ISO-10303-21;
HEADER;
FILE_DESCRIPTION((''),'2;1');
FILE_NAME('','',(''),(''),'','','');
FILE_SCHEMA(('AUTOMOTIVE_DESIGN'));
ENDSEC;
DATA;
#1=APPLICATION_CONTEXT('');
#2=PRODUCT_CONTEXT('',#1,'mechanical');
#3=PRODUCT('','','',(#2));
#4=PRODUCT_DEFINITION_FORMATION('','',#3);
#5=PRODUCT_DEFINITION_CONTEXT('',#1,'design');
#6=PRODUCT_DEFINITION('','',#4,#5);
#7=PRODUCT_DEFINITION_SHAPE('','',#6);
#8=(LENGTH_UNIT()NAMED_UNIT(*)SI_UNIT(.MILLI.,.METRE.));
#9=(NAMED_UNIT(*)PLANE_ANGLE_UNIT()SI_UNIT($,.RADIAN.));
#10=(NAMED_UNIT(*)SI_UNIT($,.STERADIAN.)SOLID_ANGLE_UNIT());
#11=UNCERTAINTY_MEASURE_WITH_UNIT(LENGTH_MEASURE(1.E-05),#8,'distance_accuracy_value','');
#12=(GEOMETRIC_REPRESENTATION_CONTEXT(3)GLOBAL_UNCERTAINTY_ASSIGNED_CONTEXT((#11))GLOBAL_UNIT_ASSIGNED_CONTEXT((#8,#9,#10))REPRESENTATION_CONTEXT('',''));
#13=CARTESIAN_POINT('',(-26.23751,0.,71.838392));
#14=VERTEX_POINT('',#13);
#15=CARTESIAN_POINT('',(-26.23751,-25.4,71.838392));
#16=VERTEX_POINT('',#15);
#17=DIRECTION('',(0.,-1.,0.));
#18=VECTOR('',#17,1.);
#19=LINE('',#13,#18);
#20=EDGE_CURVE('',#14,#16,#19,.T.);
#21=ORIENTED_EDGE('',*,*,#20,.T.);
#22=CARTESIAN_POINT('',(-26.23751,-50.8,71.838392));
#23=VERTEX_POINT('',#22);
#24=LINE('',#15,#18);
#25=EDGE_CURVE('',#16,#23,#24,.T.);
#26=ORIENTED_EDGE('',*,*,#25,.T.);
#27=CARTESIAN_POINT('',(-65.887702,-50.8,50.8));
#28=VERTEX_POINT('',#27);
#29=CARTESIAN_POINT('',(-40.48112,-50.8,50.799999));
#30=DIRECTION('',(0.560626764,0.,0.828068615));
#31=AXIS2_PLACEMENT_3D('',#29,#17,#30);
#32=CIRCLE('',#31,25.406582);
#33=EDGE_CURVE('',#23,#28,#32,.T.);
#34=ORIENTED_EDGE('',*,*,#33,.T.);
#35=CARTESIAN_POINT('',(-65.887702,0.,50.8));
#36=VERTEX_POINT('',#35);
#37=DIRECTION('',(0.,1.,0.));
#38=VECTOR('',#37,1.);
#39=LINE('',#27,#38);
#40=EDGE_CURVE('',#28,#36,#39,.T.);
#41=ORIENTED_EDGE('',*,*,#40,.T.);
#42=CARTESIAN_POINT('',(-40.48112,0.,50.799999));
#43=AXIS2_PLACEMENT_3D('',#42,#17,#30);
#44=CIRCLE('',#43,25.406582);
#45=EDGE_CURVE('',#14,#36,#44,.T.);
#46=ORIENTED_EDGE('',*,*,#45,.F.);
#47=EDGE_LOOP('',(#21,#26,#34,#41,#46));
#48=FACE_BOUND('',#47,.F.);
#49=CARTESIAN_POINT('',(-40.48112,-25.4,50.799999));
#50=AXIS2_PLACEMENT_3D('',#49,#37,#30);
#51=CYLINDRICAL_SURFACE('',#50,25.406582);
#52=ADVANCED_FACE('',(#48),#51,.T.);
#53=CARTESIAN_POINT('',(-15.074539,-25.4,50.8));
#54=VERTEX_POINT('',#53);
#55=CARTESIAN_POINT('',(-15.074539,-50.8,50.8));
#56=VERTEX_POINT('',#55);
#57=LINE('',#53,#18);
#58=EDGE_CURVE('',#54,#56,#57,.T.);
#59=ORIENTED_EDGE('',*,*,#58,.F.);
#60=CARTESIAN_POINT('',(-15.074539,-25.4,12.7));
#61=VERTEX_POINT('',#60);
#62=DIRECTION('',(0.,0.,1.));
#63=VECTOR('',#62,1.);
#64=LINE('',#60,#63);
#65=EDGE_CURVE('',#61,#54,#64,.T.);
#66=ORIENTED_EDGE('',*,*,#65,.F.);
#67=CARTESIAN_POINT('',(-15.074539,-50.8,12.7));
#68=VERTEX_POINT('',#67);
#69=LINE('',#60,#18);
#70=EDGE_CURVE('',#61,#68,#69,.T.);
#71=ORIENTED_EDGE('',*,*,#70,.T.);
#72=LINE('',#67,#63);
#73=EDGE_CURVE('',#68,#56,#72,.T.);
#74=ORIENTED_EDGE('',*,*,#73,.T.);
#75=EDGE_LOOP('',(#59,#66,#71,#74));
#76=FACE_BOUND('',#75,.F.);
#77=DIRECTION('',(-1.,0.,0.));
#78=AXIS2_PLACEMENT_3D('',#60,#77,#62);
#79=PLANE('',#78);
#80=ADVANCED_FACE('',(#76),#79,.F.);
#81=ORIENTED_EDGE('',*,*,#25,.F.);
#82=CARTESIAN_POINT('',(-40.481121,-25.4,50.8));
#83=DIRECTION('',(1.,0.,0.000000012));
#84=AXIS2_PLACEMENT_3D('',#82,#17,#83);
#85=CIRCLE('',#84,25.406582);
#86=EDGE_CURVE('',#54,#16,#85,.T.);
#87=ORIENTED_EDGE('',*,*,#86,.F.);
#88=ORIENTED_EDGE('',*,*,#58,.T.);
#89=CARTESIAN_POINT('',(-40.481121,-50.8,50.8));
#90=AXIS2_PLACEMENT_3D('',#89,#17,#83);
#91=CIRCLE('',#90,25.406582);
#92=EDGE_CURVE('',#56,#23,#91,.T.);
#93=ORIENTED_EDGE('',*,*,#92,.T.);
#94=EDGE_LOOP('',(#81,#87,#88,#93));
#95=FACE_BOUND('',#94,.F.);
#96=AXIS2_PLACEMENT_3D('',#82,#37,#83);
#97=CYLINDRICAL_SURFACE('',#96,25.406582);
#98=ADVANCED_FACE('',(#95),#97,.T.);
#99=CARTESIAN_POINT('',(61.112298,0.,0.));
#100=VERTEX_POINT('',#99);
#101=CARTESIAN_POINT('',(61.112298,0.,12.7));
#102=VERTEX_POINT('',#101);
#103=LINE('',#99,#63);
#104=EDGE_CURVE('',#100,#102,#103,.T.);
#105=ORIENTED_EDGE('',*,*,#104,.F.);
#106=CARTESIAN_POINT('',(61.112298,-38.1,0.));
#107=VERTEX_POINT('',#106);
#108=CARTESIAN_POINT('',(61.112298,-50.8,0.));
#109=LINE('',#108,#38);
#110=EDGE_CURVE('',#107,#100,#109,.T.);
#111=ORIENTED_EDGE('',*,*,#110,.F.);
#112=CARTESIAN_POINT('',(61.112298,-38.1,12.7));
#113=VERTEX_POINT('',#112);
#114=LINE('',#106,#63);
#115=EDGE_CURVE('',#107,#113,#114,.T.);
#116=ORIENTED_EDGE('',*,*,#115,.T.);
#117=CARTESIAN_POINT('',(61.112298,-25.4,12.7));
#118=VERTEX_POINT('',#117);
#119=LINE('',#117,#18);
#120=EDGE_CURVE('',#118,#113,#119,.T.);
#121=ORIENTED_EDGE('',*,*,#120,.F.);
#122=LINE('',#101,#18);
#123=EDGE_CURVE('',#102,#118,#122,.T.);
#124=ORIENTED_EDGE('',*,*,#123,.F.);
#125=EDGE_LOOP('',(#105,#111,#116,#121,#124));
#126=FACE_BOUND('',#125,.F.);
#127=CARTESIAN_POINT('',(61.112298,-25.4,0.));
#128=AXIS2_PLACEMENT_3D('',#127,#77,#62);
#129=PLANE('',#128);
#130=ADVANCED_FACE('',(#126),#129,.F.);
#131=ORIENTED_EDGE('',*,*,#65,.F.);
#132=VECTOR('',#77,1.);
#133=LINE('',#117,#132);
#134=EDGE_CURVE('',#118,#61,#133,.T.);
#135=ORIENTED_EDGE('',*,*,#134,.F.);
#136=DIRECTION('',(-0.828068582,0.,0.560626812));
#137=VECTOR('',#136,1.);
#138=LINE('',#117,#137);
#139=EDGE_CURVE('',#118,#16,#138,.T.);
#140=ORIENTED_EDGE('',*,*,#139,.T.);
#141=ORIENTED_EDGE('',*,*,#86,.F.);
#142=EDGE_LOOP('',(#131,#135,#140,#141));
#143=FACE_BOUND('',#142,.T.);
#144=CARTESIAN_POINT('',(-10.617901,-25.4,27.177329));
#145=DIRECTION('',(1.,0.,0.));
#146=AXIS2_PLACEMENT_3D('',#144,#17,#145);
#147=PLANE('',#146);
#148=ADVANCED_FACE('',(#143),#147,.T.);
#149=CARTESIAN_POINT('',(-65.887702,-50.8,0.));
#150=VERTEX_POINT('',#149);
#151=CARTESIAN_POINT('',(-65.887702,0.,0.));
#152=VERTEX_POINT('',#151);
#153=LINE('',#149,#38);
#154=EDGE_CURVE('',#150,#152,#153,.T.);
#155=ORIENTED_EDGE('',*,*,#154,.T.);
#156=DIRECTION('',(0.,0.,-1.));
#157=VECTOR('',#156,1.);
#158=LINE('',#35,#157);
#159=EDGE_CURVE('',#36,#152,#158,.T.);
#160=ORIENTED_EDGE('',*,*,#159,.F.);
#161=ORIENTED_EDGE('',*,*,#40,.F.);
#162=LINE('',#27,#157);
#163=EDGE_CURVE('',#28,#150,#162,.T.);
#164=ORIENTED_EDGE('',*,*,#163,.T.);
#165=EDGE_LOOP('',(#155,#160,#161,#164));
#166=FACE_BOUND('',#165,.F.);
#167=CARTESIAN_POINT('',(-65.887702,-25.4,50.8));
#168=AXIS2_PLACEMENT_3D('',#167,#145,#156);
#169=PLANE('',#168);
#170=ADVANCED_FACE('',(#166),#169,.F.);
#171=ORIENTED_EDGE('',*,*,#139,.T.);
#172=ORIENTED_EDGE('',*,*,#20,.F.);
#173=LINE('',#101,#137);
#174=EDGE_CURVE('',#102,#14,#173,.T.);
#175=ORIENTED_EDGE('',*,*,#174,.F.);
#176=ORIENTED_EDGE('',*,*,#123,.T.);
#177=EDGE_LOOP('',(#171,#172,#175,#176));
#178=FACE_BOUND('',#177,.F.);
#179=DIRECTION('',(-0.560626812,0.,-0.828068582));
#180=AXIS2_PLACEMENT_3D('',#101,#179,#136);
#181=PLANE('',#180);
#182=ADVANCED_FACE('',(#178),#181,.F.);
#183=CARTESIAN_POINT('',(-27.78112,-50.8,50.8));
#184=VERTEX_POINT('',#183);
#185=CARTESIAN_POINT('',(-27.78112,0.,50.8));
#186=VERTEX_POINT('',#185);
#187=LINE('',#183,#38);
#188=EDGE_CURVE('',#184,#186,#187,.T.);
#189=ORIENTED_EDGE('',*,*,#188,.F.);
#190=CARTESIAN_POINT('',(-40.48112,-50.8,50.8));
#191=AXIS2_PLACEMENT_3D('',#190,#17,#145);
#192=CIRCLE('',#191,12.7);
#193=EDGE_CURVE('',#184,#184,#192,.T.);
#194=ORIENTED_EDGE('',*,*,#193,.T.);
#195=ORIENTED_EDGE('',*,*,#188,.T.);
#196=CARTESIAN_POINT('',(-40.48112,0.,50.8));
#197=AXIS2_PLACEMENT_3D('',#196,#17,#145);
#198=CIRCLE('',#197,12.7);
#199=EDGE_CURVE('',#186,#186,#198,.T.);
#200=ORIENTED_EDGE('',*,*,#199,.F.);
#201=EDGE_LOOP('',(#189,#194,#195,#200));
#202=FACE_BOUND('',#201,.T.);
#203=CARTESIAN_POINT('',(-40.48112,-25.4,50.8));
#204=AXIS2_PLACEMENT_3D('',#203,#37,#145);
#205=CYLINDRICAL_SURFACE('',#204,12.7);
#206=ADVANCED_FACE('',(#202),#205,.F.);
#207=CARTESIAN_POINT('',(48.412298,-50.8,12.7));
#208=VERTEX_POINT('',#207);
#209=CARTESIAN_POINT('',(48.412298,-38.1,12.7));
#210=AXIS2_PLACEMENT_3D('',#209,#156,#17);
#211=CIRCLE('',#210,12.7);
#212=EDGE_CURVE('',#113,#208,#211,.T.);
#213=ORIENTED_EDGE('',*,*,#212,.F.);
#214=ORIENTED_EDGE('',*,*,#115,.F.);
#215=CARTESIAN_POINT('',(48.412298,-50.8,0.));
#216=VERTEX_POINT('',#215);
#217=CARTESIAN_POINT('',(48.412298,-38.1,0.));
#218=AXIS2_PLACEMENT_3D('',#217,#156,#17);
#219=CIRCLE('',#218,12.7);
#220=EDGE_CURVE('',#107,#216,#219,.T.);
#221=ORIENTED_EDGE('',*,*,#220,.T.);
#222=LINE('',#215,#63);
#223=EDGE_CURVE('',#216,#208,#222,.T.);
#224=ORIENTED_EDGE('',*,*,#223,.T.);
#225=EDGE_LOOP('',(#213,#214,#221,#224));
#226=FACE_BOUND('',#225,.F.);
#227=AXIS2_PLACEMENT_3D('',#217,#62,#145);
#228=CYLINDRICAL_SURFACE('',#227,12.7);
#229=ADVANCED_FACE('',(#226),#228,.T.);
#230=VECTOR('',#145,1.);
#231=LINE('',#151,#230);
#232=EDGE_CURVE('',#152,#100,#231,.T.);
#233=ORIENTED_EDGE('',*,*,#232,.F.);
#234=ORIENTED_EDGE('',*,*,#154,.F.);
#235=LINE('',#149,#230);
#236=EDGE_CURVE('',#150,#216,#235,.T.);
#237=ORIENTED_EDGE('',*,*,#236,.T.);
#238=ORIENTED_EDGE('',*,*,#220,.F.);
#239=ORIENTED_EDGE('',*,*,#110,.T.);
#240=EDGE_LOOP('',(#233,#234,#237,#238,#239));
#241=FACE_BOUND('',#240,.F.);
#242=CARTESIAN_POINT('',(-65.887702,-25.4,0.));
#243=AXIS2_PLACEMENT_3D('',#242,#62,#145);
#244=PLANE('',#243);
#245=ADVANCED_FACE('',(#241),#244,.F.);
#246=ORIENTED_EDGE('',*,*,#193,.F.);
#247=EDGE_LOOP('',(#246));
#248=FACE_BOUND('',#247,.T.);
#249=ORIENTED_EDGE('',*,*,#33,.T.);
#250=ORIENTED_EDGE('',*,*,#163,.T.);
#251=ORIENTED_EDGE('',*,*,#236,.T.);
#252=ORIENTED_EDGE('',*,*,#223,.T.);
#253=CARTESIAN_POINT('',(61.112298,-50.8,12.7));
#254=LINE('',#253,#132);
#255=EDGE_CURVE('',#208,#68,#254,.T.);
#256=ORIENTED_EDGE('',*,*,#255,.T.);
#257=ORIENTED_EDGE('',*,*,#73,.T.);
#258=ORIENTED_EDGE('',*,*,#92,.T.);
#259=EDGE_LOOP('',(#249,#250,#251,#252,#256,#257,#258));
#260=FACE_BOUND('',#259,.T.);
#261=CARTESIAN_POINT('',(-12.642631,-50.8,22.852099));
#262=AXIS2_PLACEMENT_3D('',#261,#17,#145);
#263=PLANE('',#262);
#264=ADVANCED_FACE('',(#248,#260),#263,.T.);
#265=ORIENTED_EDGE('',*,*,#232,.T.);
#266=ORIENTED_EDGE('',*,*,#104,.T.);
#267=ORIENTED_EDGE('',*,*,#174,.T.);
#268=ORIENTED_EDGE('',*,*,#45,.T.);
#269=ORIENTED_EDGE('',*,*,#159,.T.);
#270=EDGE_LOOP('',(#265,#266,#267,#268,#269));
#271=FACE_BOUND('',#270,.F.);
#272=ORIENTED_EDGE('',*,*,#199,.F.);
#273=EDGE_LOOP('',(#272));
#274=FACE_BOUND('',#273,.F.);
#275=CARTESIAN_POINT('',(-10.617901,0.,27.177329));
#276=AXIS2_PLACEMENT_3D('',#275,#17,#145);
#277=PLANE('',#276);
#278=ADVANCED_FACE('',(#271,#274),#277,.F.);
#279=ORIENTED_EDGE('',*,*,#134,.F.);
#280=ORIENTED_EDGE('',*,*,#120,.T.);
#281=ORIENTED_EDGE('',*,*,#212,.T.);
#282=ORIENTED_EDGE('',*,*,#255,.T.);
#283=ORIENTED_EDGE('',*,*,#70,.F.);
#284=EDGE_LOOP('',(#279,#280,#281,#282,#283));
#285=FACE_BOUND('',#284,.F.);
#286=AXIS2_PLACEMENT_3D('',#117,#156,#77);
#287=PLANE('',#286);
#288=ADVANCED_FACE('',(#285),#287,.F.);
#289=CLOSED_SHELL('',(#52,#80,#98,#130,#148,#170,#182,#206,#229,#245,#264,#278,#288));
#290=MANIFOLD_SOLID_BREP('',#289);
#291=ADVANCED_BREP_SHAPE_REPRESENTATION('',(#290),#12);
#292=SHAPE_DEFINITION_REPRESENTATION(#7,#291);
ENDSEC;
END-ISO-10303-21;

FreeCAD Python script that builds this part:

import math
import FreeCAD as App
import Part
import Sketcher
from FreeCAD import Vector
Q = App.Units.Quantity


def edges_at(feature, points):
    """Names of the edges that pass closest to the given points."""
    edges = feature.Shape.Edges
    near = lambda p: min(range(len(edges)), key=lambda i: edges[i].distToShape(Part.Vertex(*p))[0])
    return sorted({f"Edge{near(p) + 1}" for p in points})

doc = App.newDocument("Part")
body = doc.addObject("PartDesign::Body", "Body")

# Sketch on XZ plane
sketch1 = body.newObject("Sketcher::SketchObject", "Sketch")
sketch1.AttachmentSupport = (doc.getObject("XZ_Plane"), [""])
sketch1.MapMode = "FlatFace"
sketch1.addGeometry([
    Part.LineSegment(Vector(61, 13, 0), Vector(-26, 72, 0)),  # 0
    Part.ArcOfCircle(Part.Circle(Vector(-40, 51, 0), Vector(0, 0, 1), 25), math.radians(56), math.radians(180)),  # 1
    Part.LineSegment(Vector(-66, 51, 0), Vector(-66, 0, 0)),  # 2
    Part.LineSegment(Vector(-66, 0, 0), Vector(61, 0, 0)),  # 3
    Part.LineSegment(Vector(61, 0, 0), Vector(61, 13, 0)),  # 4
    Part.Circle(Vector(-40, 51, 0), Vector(0, 0, 1), 13),  # 5
], False)
sketch1.addConstraint([
    Sketcher.Constraint("Tangent", 0, 2, 1, 1),
    Sketcher.Constraint("Tangent", 1, 2, 2, 1),
    Sketcher.Constraint("Coincident", 2, 2, 3, 1),
    Sketcher.Constraint("Coincident", 3, 2, 4, 1),
    Sketcher.Constraint("Coincident", 4, 2, 0, 1),
    Sketcher.Constraint("Vertical", 2),
    Sketcher.Constraint("Horizontal", 3),
    Sketcher.Constraint("Vertical", 4),
    Sketcher.Constraint("Coincident", 5, 3, 1, 3),
    Sketcher.Constraint("PointOnObject", 2, 2, -1),
    Sketcher.Constraint("Diameter", 5, Q("1 in")),
    Sketcher.Constraint("DistanceX", 3, 1, 3, 2, Q("5 in")),
    Sketcher.Constraint("DistanceY", 2, 2, 2, 1, Q("2 in")),
    Sketcher.Constraint("DistanceY", 4, 1, 4, 2, Q("0.5 in")),
    Sketcher.Constraint("Distance", 0, Q("4.153 in")),
    Sketcher.Constraint("DistanceX", 1, 2, -1, 1, 65.887702),
])
pad1 = body.newObject("PartDesign::Pad", "Pad")
pad1.Profile = sketch1
pad1.Length = Q("1 in")

# Sketch on XZ plane
sketch2 = body.newObject("Sketcher::SketchObject", "Sketch001")
sketch2.AttachmentSupport = (doc.getObject("XZ_Plane"), [""])
sketch2.MapMode = "FlatFace"
sketch2.AttachmentOffset = App.Placement(Vector(0, 0, 1 * 25.4), App.Rotation())
sketch2.addGeometry([
    Part.LineSegment(Vector(61, 0, 0), Vector(61, 13, 0)),  # 0
    Part.LineSegment(Vector(61, 13, 0), Vector(-15, 13, 0)),  # 1
    Part.LineSegment(Vector(-15, 13, 0), Vector(-15, 51, 0)),  # 2
    Part.ArcOfCircle(Part.Circle(Vector(-40, 51, 0), Vector(0, 0, 1), 25), math.radians(0), math.radians(56)),  # 3
    Part.ArcOfCircle(Part.Circle(Vector(-40, 51, 0), Vector(0, 0, 1), 25), math.radians(56), math.radians(180)),  # 4
    Part.LineSegment(Vector(-66, 51, 0), Vector(-66, 0, 0)),  # 5
    Part.LineSegment(Vector(-66, 0, 0), Vector(61, 0, 0)),  # 6
    Part.Circle(Vector(-40, 51, 0), Vector(0, 0, 1), 13),  # 7
], False)
sketch2.addConstraint([
    Sketcher.Constraint("Coincident", 0, 2, 1, 1),
    Sketcher.Constraint("Coincident", 1, 2, 2, 1),
    Sketcher.Constraint("Tangent", 2, 2, 3, 1),
    Sketcher.Constraint("Tangent", 3, 2, 4, 1),
    Sketcher.Constraint("Tangent", 4, 2, 5, 1),
    Sketcher.Constraint("Coincident", 5, 2, 6, 1),
    Sketcher.Constraint("Coincident", 6, 2, 0, 1),
    Sketcher.Constraint("Vertical", 0),
    Sketcher.Constraint("Horizontal", 1),
    Sketcher.Constraint("Vertical", 2),
    Sketcher.Constraint("Vertical", 5),
    Sketcher.Constraint("Horizontal", 6),
    Sketcher.Constraint("Coincident", 7, 3, 3, 3),
    Sketcher.Constraint("Equal", 3, 4),
    Sketcher.Constraint("PointOnObject", 5, 2, -1),
    Sketcher.Constraint("Diameter", 7, Q("1 in")),
    Sketcher.Constraint("DistanceX", 6, 1, 6, 2, Q("5 in")),
    Sketcher.Constraint("DistanceY", 5, 2, 5, 1, Q("2 in")),
    Sketcher.Constraint("DistanceY", 0, 1, 0, 2, Q("0.5 in")),
    Sketcher.Constraint("Radius", 3, 25.406582),
    Sketcher.Constraint("DistanceX", -1, 1, 0, 2, 61.112298),
    Sketcher.Constraint("DistanceX", 3, 2, -1, 1, 26.23751),
])
pad2 = body.newObject("PartDesign::Pad", "Pad001")
pad2.Profile = sketch2
pad2.Length = Q("1 in")
doc.recompute()

fillet = body.newObject("PartDesign::Fillet", "Fillet")
fillet.Base = (pad2, edges_at(pad2, [(61.112, -50.8, 6.35)]))
fillet.Radius = Q("0.5 in")

doc.recompute()
